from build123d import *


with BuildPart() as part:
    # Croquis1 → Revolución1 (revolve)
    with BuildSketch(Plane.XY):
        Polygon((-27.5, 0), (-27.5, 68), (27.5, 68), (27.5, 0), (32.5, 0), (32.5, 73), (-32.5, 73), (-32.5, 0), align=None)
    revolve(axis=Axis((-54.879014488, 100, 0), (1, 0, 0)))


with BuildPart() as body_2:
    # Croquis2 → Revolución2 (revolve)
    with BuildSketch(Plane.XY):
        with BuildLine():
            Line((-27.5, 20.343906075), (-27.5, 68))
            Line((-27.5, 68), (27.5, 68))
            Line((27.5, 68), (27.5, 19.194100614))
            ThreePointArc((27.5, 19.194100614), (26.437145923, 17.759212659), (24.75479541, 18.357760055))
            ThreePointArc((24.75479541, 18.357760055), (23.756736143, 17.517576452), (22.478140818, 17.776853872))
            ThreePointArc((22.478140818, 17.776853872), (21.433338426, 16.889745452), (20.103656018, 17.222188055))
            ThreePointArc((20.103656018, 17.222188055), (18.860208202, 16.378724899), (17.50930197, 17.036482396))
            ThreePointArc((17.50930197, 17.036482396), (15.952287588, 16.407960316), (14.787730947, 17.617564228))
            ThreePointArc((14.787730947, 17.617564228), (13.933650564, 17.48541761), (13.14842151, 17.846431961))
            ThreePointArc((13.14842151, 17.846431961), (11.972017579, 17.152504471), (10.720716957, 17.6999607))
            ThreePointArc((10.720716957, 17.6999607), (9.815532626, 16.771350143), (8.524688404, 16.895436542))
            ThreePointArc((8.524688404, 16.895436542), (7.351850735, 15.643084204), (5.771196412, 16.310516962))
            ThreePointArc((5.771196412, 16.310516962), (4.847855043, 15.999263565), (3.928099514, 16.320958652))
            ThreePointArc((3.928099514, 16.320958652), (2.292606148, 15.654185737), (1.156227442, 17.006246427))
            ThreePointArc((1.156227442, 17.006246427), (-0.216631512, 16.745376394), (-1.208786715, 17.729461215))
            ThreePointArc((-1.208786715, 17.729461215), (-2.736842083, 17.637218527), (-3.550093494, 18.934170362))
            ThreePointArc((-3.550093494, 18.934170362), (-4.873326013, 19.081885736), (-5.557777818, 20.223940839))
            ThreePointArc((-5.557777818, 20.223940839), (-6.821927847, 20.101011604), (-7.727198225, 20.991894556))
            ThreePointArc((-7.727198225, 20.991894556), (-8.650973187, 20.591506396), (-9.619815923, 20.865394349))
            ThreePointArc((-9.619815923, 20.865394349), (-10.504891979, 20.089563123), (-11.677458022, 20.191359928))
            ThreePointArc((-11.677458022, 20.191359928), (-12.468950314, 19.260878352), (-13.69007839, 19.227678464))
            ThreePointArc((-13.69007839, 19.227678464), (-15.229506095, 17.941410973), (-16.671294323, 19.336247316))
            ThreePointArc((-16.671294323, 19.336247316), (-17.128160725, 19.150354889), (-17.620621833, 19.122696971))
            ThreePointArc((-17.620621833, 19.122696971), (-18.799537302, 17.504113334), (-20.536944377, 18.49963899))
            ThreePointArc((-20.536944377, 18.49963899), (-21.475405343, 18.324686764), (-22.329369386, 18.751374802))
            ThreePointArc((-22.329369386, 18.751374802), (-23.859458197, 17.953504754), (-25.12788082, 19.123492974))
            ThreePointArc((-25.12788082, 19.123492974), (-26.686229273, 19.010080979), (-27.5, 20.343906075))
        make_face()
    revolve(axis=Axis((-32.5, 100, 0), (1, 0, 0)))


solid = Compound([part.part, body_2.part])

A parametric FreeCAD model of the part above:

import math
import FreeCAD as App
import Part
import Sketcher

V = App.Vector


def add_polygon(sketch, points):
    """Adds a closed chain of lines whose ends are joined by coincident constraints."""
    first, n = sketch.GeometryCount, len(points)
    for a, b in zip(points, points[1:] + points[:1]):
        sketch.addGeometry(Part.LineSegment(App.Vector(*a, 0), App.Vector(*b, 0)), False)
    for i in range(n):
        sketch.addConstraint(Sketcher.Constraint("Coincident", first + i, 2, first + (i + 1) % n, 1))

doc = App.newDocument("Part")
body = doc.addObject("PartDesign::Body", "Body")

# Sketch on XY plane
sketch1 = body.newObject("Sketcher::SketchObject", "Sketch")
sketch1.AttachmentSupport = (doc.getObject("XY_Plane"), [""])
sketch1.MapMode = "FlatFace"
add_polygon(sketch1, [(-28, 0), (-28, 68), (28, 68), (28, 0), (32, 0), (32, 73), (-32, 73), (-32, 0)])  # lines 0-7
sketch1.addGeometry(Part.LineSegment(V(-32, 100, 0), V(32, 100, 0)), True)  # axis
sketch1.addConstraint([
    Sketcher.Constraint("Vertical", 0),
    Sketcher.Constraint("Horizontal", 1),
    Sketcher.Constraint("Vertical", 2),
    Sketcher.Constraint("Horizontal", 3),
    Sketcher.Constraint("Vertical", 4),
    Sketcher.Constraint("Horizontal", 5),
    Sketcher.Constraint("Vertical", 6),
    Sketcher.Constraint("Horizontal", 7),
    Sketcher.Constraint("Horizontal", 8),
    Sketcher.Constraint("Symmetric", 3, 2, 6, 2, -1, 1),
    Sketcher.Constraint("Symmetric", 2, 2, 7, 2, -2),
    Sketcher.Constraint("Vertical", 6, 2, 8, 1),
    Sketcher.Constraint("Vertical", 4, 2, 8, 2),
    Sketcher.Constraint("DistanceX", 1, 1, 1, 2, 55.0),
    Sketcher.Constraint("DistanceX", 3, 1, 3, 2, 5.0),
    Sketcher.Constraint("DistanceY", 0, 1, 0, 2, 68.0),
    Sketcher.Constraint("DistanceY", 4, 1, 4, 2, 73.0),
    Sketcher.Constraint("DistanceY", -1, 1, 8, 1, 100.0),
])
revolution = body.newObject("PartDesign::Revolution", "Revolution")
revolution.Profile = sketch1
revolution.ReferenceAxis = (sketch1, ["Axis0"])
revolution.Angle = 360
body2 = doc.addObject("PartDesign::Body", "Body001")

# Sketch on XY plane
sketch2 = body2.newObject("Sketcher::SketchObject", "Sketch001")
sketch2.AttachmentSupport = (doc.getObject("XY_Plane001"), [""])
sketch2.MapMode = "FlatFace"
sketch2.addGeometry([
    Part.LineSegment(V(-27.5, 68, 0), V(-27.5, 20.3, 0)),  # 0
    Part.ArcOfCircle(Part.Circle(V(-26, 20.3, 0), V(0, 0, 1), 1.5), math.radians(180), math.radians(306)),  # 1
    Part.ArcOfCircle(Part.Circle(V(-23.7, 19.4, 0), V(0, 0, 1), 1.5), math.radians(-168), math.radians(-27)),  # 2
    Part.ArcOfCircle(Part.Circle(V(-21.3, 19.8, 0), V(0, 0, 1), 1.5), math.radians(-135), math.radians(-61)),  # 3
    Part.ArcOfCircle(Part.Circle(V(-19.1, 19, 0), V(0, 0, 1), 1.5), math.radians(-162), math.radians(6)),  # 4
    Part.ArcOfCircle(Part.Circle(V(-17.5, 20.6, 0), V(0, 0, 1), 1.5), math.radians(-96), math.radians(-58)),  # 5
    Part.ArcOfCircle(Part.Circle(V(-15.2, 19.4, 0), V(0, 0, 1), 1.5), math.radians(-176), math.radians(-8)),  # 6
    Part.ArcOfCircle(Part.Circle(V(-13.1, 20.6, 0), V(0, 0, 1), 1.5), math.radians(-112), math.radians(-16)),  # 7
    Part.ArcOfCircle(Part.Circle(V(-11, 21.5, 0), V(0, 0, 1), 1.5), math.radians(-118), math.radians(-26)),  # 8
    Part.ArcOfCircle(Part.Circle(V(-8.8, 22.1, 0), V(0, 0, 1), 1.5), math.radians(-125), math.radians(-47)),  # 9
    Part.ArcOfCircle(Part.Circle(V(-6.3, 21.5, 0), V(0, 0, 1), 1.5), math.radians(-160), math.radians(-59)),  # 10
    Part.ArcOfCircle(Part.Circle(V(-4.1, 20.3, 0), V(0, 0, 1), 1.5), math.radians(-175), math.radians(-70)),  # 11
    Part.ArcOfCircle(Part.Circle(V(-2.1, 19, 0), V(0, 0, 1), 1.5), math.radians(-179), math.radians(-56)),  # 12
    Part.ArcOfCircle(Part.Circle(V(0.2, 18.2, 0), V(0, 0, 1), 1.5), math.radians(-163), math.radians(-51)),  # 13
    Part.ArcOfCircle(Part.Circle(V(2.7, 17.1, 0), V(0, 0, 1), 1.5), math.radians(-176), math.radians(-32)),  # 14
    Part.ArcOfCircle(Part.Circle(V(4.9, 17.5, 0), V(0, 0, 1), 1.5), math.radians(-128), math.radians(-52)),  # 15
    Part.ArcOfCircle(Part.Circle(V(7, 17.1, 0), V(0, 0, 1), 1.5), math.radians(-148), math.radians(-8)),  # 16
    Part.ArcOfCircle(Part.Circle(V(9.3, 18.2, 0), V(0, 0, 1), 1.5), math.radians(-121), math.radians(-19)),  # 17
    Part.ArcOfCircle(Part.Circle(V(11.9, 18.6, 0), V(0, 0, 1), 1.5), math.radians(-141), math.radians(-32)),  # 18
    Part.ArcOfCircle(Part.Circle(V(14.1, 19, 0), V(0, 0, 1), 1.5), math.radians(-131), math.radians(-64)),  # 19
    Part.ArcOfCircle(Part.Circle(V(16.3, 17.9, 0), V(0, 0, 1), 1.5), math.radians(-170), math.radians(-34)),  # 20
    Part.ArcOfCircle(Part.Circle(V(18.8, 17.9, 0), V(0, 0, 1), 1.5), math.radians(-146), math.radians(-26)),  # 21
    Part.ArcOfCircle(Part.Circle(V(21.1, 18.4, 0), V(0, 0, 1), 1.5), math.radians(-131), math.radians(-22)),  # 22
    Part.ArcOfCircle(Part.Circle(V(23.4, 19, 0), V(0, 0, 1), 1.5), math.radians(-127), math.radians(-24)),  # 23
    Part.ArcOfCircle(Part.Circle(V(26, 19.2, 0), V(0, 0, 1), 1.5), math.radians(-146), math.radians(0)),  # 24
    Part.LineSegment(V(27.5, 19.2, 0), V(27.5, 68, 0)),  # 25
    Part.LineSegment(V(27.5, 68, 0), V(-27.5, 68, 0)),  # 26
], False)
sketch2.addGeometry(Part.LineSegment(V(-27.5, 100, 0), V(27.5, 100, 0)), True)  # axis
sketch2.addConstraint([
    Sketcher.Constraint("Tangent", 0, 2, 1, 1),
    Sketcher.Constraint("Coincident", 1, 2, 2, 1),
    Sketcher.Constraint("Coincident", 2, 2, 3, 1),
    Sketcher.Constraint("Coincident", 3, 2, 4, 1),
    Sketcher.Constraint("Coincident", 4, 2, 5, 1),
    Sketcher.Constraint("Coincident", 5, 2, 6, 1),
    Sketcher.Constraint("Coincident", 6, 2, 7, 1),
    Sketcher.Constraint("Coincident", 7, 2, 8, 1),
    Sketcher.Constraint("Coincident", 8, 2, 9, 1),
    Sketcher.Constraint("Coincident", 9, 2, 10, 1),
    Sketcher.Constraint("Coincident", 10, 2, 11, 1),
    Sketcher.Constraint("Coincident", 11, 2, 12, 1),
    Sketcher.Constraint("Coincident", 12, 2, 13, 1),
    Sketcher.Constraint("Coincident", 13, 2, 14, 1),
    Sketcher.Constraint("Coincident", 14, 2, 15, 1),
    Sketcher.Constraint("Coincident", 15, 2, 16, 1),
    Sketcher.Constraint("Coincident", 16, 2, 17, 1),
    Sketcher.Constraint("Coincident", 17, 2, 18, 1),
    Sketcher.Constraint("Coincident", 18, 2, 19, 1),
    Sketcher.Constraint("Coincident", 19, 2, 20, 1),
    Sketcher.Constraint("Coincident", 20, 2, 21, 1),
    Sketcher.Constraint("Coincident", 21, 2, 22, 1),
    Sketcher.Constraint("Coincident", 22, 2, 23, 1),
    Sketcher.Constraint("Coincident", 23, 2, 24, 1),
    Sketcher.Constraint("Tangent", 24, 2, 25, 1),
    Sketcher.Constraint("Coincident", 25, 2, 26, 1),
    Sketcher.Constraint("Coincident", 26, 2, 0, 1),
    Sketcher.Constraint("Vertical", 0),
    Sketcher.Constraint("Vertical", 25),
    Sketcher.Constraint("Horizontal", 26),
    Sketcher.Constraint("Horizontal", 27),
    Sketcher.Constraint("Equal", 1, 2),
    Sketcher.Constraint("Equal", 2, 3),
    Sketcher.Constraint("Equal", 3, 4),
    Sketcher.Constraint("Equal", 4, 5),
    Sketcher.Constraint("Equal", 5, 6),
    Sketcher.Constraint("Equal", 6, 7),
    Sketcher.Constraint("Equal", 7, 8),
    Sketcher.Constraint("Equal", 8, 9),
    Sketcher.Constraint("Equal", 9, 10),
    Sketcher.Constraint("Equal", 10, 11),
    Sketcher.Constraint("Equal", 11, 12),
    Sketcher.Constraint("Equal", 12, 13),
    Sketcher.Constraint("Equal", 13, 14),
    Sketcher.Constraint("Equal", 14, 15),
    Sketcher.Constraint("Equal", 15, 16),
    Sketcher.Constraint("Equal", 16, 17),
    Sketcher.Constraint("Equal", 17, 18),
    Sketcher.Constraint("Equal", 18, 19),
    Sketcher.Constraint("Equal", 19, 20),
    Sketcher.Constraint("Equal", 20, 21),
    Sketcher.Constraint("Equal", 21, 22),
    Sketcher.Constraint("Equal", 22, 23),
    Sketcher.Constraint("Equal", 23, 24),
    Sketcher.Constraint("Horizontal", 2, 3, 6, 3),
    Sketcher.Constraint("Horizontal", 5, 3, 7, 3),
    Sketcher.Constraint("Horizontal", 8, 3, 10, 3),
    Sketcher.Constraint("Horizontal", 1, 3, 11, 3),
    Sketcher.Constraint("Horizontal", 4, 3, 12, 3),
    Sketcher.Constraint("Horizontal", 14, 3, 16, 3),
    Sketcher.Constraint("Horizontal", 13, 3, 17, 3),
    Sketcher.Constraint("Horizontal", 12, 3, 19, 3),
    Sketcher.Constraint("Horizontal", 20, 3, 21, 3),
    Sketcher.Constraint("Horizontal", 19, 3, 23, 3),
    Sketcher.Constraint("Vertical", 26, 2, 27, 1),
    Sketcher.Constraint("Vertical", 25, 2, 27, 2),
    Sketcher.Constraint("Radius", 1, 1.5),
    Sketcher.Constraint("DistanceX", 26, 2, 26, 1, 55.0),
    Sketcher.Constraint("DistanceX", 1, 3, -1, 1, 26.0),
    Sketcher.Constraint("DistanceY", -1, 1, 25, 2, 68.0),
    Sketcher.Constraint("DistanceY", -1, 1, 27, 1, 100.0),
    Sketcher.Constraint("DistanceY", 25, 1, 25, 2, 48.805899),
    Sketcher.Constraint("DistanceX", 9, 2, -1, 1, 7.727198),
    Sketcher.Constraint("DistanceX", -1, 1, 14, 2, 3.9281),
    Sketcher.Constraint("DistanceX", -1, 1, 20, 2, 17.509302),
    Sketcher.Constraint("DistanceY", 4, 3, 3, 3, 0.839099),
    Sketcher.Constraint("DistanceY", 13, 3, 11, 3, 2.164099),
    Sketcher.Constraint("DistanceX", 12, 3, 15, 3, 6.906899),
    Sketcher.Constraint("DistanceX", 18, 3, 23, 3, 11.504199),
    Sketcher.Constraint("DistanceX", 2, 3, 3, 2, 3.124799),
    Sketcher.Constraint("DistanceY", 8, 2, 9, 2, 0.1265),
    Sketcher.Constraint("DistanceX", 10, 3, 10, 2, 0.763601),
    Sketcher.Constraint("DistanceX", 12, 2, 13, 3, 1.4308),
    Sketcher.Constraint("DistanceY", 0, 2, 0, 1, 47.656094),
    Sketcher.Constraint("DistanceY", -1, 1, 3, 3, 19.810109),
    Sketcher.Constraint("DistanceX", 5, 3, -1, 1, 17.457358),
    Sketcher.Constraint("DistanceX", 7, 3, -1, 1, 13.116748),
    Sketcher.Constraint("DistanceX", 8, 3, -1, 1, 10.971841),
    Sketcher.Constraint("DistanceY", -1, 1, 8, 3, 21.515031),
    Sketcher.Constraint("DistanceX", 9, 3, -1, 1, 8.751008),
    Sketcher.Constraint("DistanceX", -1, 1, 14, 3, 2.652611),
    Sketcher.Constraint("DistanceY", -1, 1, 15, 3, 17.499239),
    Sketcher.Constraint("DistanceX", -1, 1, 17, 3, 9.299539),
    Sketcher.Constraint("DistanceX", -1, 1, 18, 3, 11.881682),
    Sketcher.Constraint("DistanceY", -1, 1, 18, 3, 18.649782),
    Sketcher.Constraint("DistanceX", -1, 1, 21, 3, 18.753111),
    Sketcher.Constraint("DistanceX", 1, 2, -1, 1, 25.127881),
    Sketcher.Constraint("DistanceX", 2, 2, -1, 1, 22.329369),
    Sketcher.Constraint("DistanceY", -1, 1, 3, 2, 18.499639),
    Sketcher.Constraint("DistanceX", 4, 2, -1, 1, 17.620622),
    Sketcher.Constraint("DistanceX", 6, 2, -1, 1, 13.690078),
    Sketcher.Constraint("DistanceY", -1, 1, 11, 2, 18.93417),
    Sketcher.Constraint("DistanceX", -1, 1, 16, 2, 8.524688),
    Sketcher.Constraint("DistanceX", -1, 1, 18, 2, 13.148422),
    Sketcher.Constraint("DistanceX", -1, 1, 19, 2, 14.787731),
    Sketcher.Constraint("DistanceY", -1, 1, 21, 2, 17.222188),
    Sketcher.Constraint("DistanceX", -1, 1, 22, 2, 22.478141),
])
revolution2 = body2.newObject("PartDesign::Revolution", "Revolution001")
revolution2.Profile = sketch2
revolution2.ReferenceAxis = (sketch2, ["Axis0"])
revolution2.Angle = 360

doc.recompute()
